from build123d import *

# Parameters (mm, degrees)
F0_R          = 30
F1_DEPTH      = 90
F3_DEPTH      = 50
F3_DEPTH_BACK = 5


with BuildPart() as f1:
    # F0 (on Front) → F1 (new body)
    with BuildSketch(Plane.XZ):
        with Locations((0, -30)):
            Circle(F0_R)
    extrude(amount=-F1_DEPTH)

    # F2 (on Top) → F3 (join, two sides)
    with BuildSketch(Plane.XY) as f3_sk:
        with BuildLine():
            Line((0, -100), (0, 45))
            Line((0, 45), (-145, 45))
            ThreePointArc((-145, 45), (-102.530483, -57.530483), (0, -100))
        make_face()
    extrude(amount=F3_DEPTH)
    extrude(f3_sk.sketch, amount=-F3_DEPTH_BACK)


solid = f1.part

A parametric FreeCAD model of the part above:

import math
import FreeCAD as App
import Part
import Sketcher

V = App.Vector
Q = App.Units.Quantity

doc = App.newDocument("Part")
body = doc.addObject("PartDesign::Body", "Body")

sketch1 = body.newObject("Sketcher::SketchObject", "Sketch")
sketch1.AttachmentSupport = (doc.getObject("XZ_Plane"), [""])
sketch1.MapMode = "FlatFace"
sketch1.addGeometry(Part.Circle(V(0, -30, 0), V(0, 0, 1), 30), False)
sketch1.addConstraint([
    Sketcher.Constraint("PointOnObject", 0, 3, -2),
    Sketcher.Constraint("Diameter", 0, Q("60 mm")),
    Sketcher.Constraint("DistanceY", 0, 3, -1, 1, Q("30 mm")),
])
pad1 = body.newObject("PartDesign::Pad", "Pad")
pad1.Profile = sketch1
pad1.Length = 90
pad1.Reversed = True

sketch2 = body.newObject("Sketcher::SketchObject", "Sketch001")
sketch2.AttachmentSupport = (doc.getObject("XY_Plane"), [""])
sketch2.MapMode = "FlatFace"
sketch2.addGeometry([
    Part.LineSegment(V(0, -100, 0), V(0, 45, 0)),
    Part.LineSegment(V(0, 45, 0), V(-145, 45, 0)),
    Part.ArcOfCircle(Part.Circle(V(0, 45, 0), V(0, 0, 1), 145), math.radians(-180), math.radians(-90)),
], False)
sketch2.addConstraint([
    Sketcher.Constraint("Coincident", 0, 2, 1, 1),
    Sketcher.Constraint("Coincident", 1, 2, 2, 1),
    Sketcher.Constraint("Coincident", 2, 2, 0, 1),
    Sketcher.Constraint("Vertical", 0),
    Sketcher.Constraint("Horizontal", 1),
    Sketcher.Constraint("Coincident", 0, 2, 2, 3),
    Sketcher.Constraint("PointOnObject", 2, 3, -2),
    Sketcher.Constraint("Radius", 2, Q("145.000001 mm")),
    Sketcher.Constraint("DistanceY", -1, 1, 2, 3, Q("45.000001 mm")),
])
pad2 = body.newObject("PartDesign::Pad", "Pad001")
pad2.Profile = sketch2
pad2.Type = "TwoLengths"
pad2.Length = 50
pad2.Length2 = 5

doc.recompute()
